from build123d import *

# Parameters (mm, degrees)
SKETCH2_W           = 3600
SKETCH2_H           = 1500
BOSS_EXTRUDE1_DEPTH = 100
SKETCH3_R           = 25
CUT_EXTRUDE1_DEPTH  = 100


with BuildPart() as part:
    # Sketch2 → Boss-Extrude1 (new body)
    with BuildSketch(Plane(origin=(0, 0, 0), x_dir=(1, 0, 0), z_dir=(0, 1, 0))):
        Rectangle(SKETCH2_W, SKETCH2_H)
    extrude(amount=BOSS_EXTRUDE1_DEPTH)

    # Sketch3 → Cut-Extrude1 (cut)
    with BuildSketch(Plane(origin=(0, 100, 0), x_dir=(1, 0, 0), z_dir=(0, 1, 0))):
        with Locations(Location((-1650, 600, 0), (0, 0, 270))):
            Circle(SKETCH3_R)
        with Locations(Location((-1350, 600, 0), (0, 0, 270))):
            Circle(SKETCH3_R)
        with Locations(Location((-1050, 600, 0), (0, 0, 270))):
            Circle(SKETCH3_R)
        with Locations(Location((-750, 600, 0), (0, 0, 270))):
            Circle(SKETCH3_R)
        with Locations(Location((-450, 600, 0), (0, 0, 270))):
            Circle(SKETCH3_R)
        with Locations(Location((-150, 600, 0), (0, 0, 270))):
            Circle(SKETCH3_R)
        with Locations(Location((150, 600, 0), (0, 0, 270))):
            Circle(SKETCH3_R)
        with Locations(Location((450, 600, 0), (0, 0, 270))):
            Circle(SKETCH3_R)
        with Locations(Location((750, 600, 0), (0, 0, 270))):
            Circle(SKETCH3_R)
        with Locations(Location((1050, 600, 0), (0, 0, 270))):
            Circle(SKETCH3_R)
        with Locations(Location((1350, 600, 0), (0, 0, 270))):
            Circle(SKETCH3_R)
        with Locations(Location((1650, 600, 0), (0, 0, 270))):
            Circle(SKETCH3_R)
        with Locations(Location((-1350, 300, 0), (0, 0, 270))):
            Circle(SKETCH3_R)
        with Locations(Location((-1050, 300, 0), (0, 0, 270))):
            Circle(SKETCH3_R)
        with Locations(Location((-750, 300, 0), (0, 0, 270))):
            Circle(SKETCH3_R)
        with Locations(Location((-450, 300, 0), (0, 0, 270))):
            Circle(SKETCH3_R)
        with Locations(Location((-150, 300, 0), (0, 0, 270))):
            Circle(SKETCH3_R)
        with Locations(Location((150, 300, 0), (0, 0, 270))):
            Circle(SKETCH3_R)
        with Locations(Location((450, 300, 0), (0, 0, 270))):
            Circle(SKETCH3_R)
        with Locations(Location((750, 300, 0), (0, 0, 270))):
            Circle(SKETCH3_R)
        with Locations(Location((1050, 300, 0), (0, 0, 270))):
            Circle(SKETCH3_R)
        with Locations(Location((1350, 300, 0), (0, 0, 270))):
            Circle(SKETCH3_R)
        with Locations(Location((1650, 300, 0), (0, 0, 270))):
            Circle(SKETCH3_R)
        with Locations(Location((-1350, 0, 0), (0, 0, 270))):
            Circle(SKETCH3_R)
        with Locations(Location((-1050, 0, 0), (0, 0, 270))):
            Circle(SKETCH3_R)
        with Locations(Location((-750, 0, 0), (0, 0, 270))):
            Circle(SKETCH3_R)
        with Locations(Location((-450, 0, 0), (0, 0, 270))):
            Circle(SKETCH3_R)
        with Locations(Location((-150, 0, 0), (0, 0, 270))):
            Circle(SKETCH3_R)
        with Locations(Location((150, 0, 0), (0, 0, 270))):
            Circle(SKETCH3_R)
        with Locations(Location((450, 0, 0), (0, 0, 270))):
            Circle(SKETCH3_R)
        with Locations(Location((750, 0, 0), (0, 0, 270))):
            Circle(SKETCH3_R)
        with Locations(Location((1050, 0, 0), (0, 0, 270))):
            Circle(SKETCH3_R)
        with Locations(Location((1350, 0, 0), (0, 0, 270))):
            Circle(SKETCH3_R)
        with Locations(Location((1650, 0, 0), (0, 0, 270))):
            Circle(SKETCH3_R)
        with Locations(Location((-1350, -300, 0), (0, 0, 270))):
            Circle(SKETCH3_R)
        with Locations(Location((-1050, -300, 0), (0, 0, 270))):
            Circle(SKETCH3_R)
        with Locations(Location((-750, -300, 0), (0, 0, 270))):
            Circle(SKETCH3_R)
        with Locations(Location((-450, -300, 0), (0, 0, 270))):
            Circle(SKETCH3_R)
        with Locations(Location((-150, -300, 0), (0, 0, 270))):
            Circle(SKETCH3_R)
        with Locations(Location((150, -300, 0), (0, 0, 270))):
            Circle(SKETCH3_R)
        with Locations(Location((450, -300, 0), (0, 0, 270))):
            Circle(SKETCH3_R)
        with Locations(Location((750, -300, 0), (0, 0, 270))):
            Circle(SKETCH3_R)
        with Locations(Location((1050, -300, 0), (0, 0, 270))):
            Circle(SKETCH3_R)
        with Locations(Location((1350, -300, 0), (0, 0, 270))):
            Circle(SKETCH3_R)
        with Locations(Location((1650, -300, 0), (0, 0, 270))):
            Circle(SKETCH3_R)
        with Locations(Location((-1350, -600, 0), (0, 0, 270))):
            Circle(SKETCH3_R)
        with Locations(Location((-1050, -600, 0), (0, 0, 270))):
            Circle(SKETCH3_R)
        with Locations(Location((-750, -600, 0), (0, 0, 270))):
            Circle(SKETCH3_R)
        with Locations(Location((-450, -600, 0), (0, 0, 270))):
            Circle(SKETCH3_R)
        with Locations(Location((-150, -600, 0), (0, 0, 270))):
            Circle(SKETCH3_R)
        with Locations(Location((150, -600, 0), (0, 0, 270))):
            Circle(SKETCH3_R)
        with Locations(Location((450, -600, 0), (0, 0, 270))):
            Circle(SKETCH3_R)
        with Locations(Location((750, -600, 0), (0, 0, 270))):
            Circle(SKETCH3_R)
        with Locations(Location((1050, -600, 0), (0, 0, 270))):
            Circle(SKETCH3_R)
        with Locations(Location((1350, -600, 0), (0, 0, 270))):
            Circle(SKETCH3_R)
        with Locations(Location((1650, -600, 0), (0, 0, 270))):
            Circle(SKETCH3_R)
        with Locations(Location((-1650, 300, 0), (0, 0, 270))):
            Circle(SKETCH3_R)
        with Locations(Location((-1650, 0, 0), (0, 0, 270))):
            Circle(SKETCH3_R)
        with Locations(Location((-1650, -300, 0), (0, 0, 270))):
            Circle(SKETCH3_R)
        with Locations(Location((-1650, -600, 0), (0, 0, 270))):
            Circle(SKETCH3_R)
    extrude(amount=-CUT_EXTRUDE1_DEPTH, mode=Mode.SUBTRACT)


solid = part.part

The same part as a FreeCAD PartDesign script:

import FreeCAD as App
import Part
import Sketcher

V = App.Vector
Q = App.Units.Quantity


def add_polygon(sketch, points):
    """Adds a closed chain of lines whose ends are joined by coincident constraints."""
    first, n = sketch.GeometryCount, len(points)
    for a, b in zip(points, points[1:] + points[:1]):
        sketch.addGeometry(Part.LineSegment(App.Vector(*a, 0), App.Vector(*b, 0)), False)
    for i in range(n):
        sketch.addConstraint(Sketcher.Constraint("Coincident", first + i, 2, first + (i + 1) % n, 1))

doc = App.newDocument("Part")
body = doc.addObject("PartDesign::Body", "Body")

# Sketch on XZ plane
sketch1 = body.newObject("Sketcher::SketchObject", "Sketch")
sketch1.AttachmentSupport = (doc.getObject("XZ_Plane"), [""])
sketch1.MapMode = "FlatFace"
add_polygon(sketch1, [(-1800, -750), (-1800, 750), (1800, 750), (1800, -750)])  # lines 0-3
sketch1.addConstraint([
    Sketcher.Constraint("Vertical", 0),
    Sketcher.Constraint("Horizontal", 1),
    Sketcher.Constraint("Vertical", 2),
    Sketcher.Constraint("Horizontal", 3),
    Sketcher.Constraint("Symmetric", 0, 2, 2, 2, -1, 1),
    Sketcher.Constraint("DistanceX", 1, 1, 1, 2, Q("3600 mm")),
    Sketcher.Constraint("DistanceY", 0, 1, 0, 2, Q("1500 mm")),
])
pad1 = body.newObject("PartDesign::Pad", "Pad")
pad1.Profile = sketch1
pad1.Length = 100
pad1.Reversed = True

# Sketch on XZ plane
sketch2 = body.newObject("Sketcher::SketchObject", "Sketch001")
sketch2.AttachmentSupport = (doc.getObject("XZ_Plane"), [""])
sketch2.MapMode = "FlatFace"
sketch2.AttachmentOffset = App.Placement(V(0, 0, -100), App.Rotation())
sketch2.addGeometry([
    Part.Circle(V(-1650, -600, 0), V(0, 0, 1), 25),  # 0
    Part.Circle(V(-1350, -600, 0), V(0, 0, 1), 25),  # 1
    Part.Circle(V(-1050, -600, 0), V(0, 0, 1), 25),  # 2
    Part.Circle(V(-750, -600, 0), V(0, 0, 1), 25),  # 3
    Part.Circle(V(-450, -600, 0), V(0, 0, 1), 25),  # 4
    Part.Circle(V(-150, -600, 0), V(0, 0, 1), 25),  # 5
    Part.Circle(V(150, -600, 0), V(0, 0, 1), 25),  # 6
    Part.Circle(V(450, -600, 0), V(0, 0, 1), 25),  # 7
    Part.Circle(V(750, -600, 0), V(0, 0, 1), 25),  # 8
    Part.Circle(V(1050, -600, 0), V(0, 0, 1), 25),  # 9
    Part.Circle(V(1350, -600, 0), V(0, 0, 1), 25),  # 10
    Part.Circle(V(1650, -600, 0), V(0, 0, 1), 25),  # 11
    Part.Circle(V(-1350, -300, 0), V(0, 0, 1), 25),  # 12
    Part.Circle(V(-1050, -300, 0), V(0, 0, 1), 25),  # 13
    Part.Circle(V(-750, -300, 0), V(0, 0, 1), 25),  # 14
    Part.Circle(V(-450, -300, 0), V(0, 0, 1), 25),  # 15
    Part.Circle(V(-150, -300, 0), V(0, 0, 1), 25),  # 16
    Part.Circle(V(150, -300, 0), V(0, 0, 1), 25),  # 17
    Part.Circle(V(450, -300, 0), V(0, 0, 1), 25),  # 18
    Part.Circle(V(750, -300, 0), V(0, 0, 1), 25),  # 19
    Part.Circle(V(1050, -300, 0), V(0, 0, 1), 25),  # 20
    Part.Circle(V(1350, -300, 0), V(0, 0, 1), 25),  # 21
    Part.Circle(V(1650, -300, 0), V(0, 0, 1), 25),  # 22
    Part.Circle(V(-1350, 0, 0), V(0, 0, 1), 25),  # 23
    Part.Circle(V(-1050, 0, 0), V(0, 0, 1), 25),  # 24
    Part.Circle(V(-750, 0, 0), V(0, 0, 1), 25),  # 25
    Part.Circle(V(-450, 0, 0), V(0, 0, 1), 25),  # 26
    Part.Circle(V(-150, 0, 0), V(0, 0, 1), 25),  # 27
    Part.Circle(V(150, 0, 0), V(0, 0, 1), 25),  # 28
    Part.Circle(V(450, 0, 0), V(0, 0, 1), 25),  # 29
    Part.Circle(V(750, 0, 0), V(0, 0, 1), 25),  # 30
    Part.Circle(V(1050, 0, 0), V(0, 0, 1), 25),  # 31
    Part.Circle(V(1350, 0, 0), V(0, 0, 1), 25),  # 32
    Part.Circle(V(1650, 0, 0), V(0, 0, 1), 25),  # 33
    Part.Circle(V(-1350, 300, 0), V(0, 0, 1), 25),  # 34
    Part.Circle(V(-1050, 300, 0), V(0, 0, 1), 25),  # 35
    Part.Circle(V(-750, 300, 0), V(0, 0, 1), 25),  # 36
    Part.Circle(V(-450, 300, 0), V(0, 0, 1), 25),  # 37
    Part.Circle(V(-150, 300, 0), V(0, 0, 1), 25),  # 38
    Part.Circle(V(150, 300, 0), V(0, 0, 1), 25),  # 39
    Part.Circle(V(450, 300, 0), V(0, 0, 1), 25),  # 40
    Part.Circle(V(750, 300, 0), V(0, 0, 1), 25),  # 41
    Part.Circle(V(1050, 300, 0), V(0, 0, 1), 25),  # 42
    Part.Circle(V(1350, 300, 0), V(0, 0, 1), 25),  # 43
    Part.Circle(V(1650, 300, 0), V(0, 0, 1), 25),  # 44
    Part.Circle(V(-1350, 600, 0), V(0, 0, 1), 25),  # 45
    Part.Circle(V(-1050, 600, 0), V(0, 0, 1), 25),  # 46
    Part.Circle(V(-750, 600, 0), V(0, 0, 1), 25),  # 47
    Part.Circle(V(-450, 600, 0), V(0, 0, 1), 25),  # 48
    Part.Circle(V(-150, 600, 0), V(0, 0, 1), 25),  # 49
    Part.Circle(V(150, 600, 0), V(0, 0, 1), 25),  # 50
    Part.Circle(V(450, 600, 0), V(0, 0, 1), 25),  # 51
    Part.Circle(V(750, 600, 0), V(0, 0, 1), 25),  # 52
    Part.Circle(V(1050, 600, 0), V(0, 0, 1), 25),  # 53
    Part.Circle(V(1350, 600, 0), V(0, 0, 1), 25),  # 54
    Part.Circle(V(1650, 600, 0), V(0, 0, 1), 25),  # 55
    Part.Circle(V(-1650, -300, 0), V(0, 0, 1), 25),  # 56
    Part.Circle(V(-1650, 0, 0), V(0, 0, 1), 25),  # 57
    Part.Circle(V(-1650, 300, 0), V(0, 0, 1), 25),  # 58
    Part.Circle(V(-1650, 600, 0), V(0, 0, 1), 25),  # 59
], False)
sketch2.addConstraint([
    Sketcher.Constraint("Equal", 0, 1),
    Sketcher.Constraint("Equal", 1, 2),
    Sketcher.Constraint("Equal", 2, 3),
    Sketcher.Constraint("Equal", 3, 4),
    Sketcher.Constraint("Equal", 4, 5),
    Sketcher.Constraint("Equal", 5, 6),
    Sketcher.Constraint("Equal", 6, 7),
    Sketcher.Constraint("Equal", 7, 8),
    Sketcher.Constraint("Equal", 8, 9),
    Sketcher.Constraint("Equal", 9, 10),
    Sketcher.Constraint("Equal", 10, 11),
    Sketcher.Constraint("Equal", 11, 12),
    Sketcher.Constraint("Equal", 12, 13),
    Sketcher.Constraint("Equal", 13, 14),
    Sketcher.Constraint("Equal", 14, 15),
    Sketcher.Constraint("Equal", 15, 16),
    Sketcher.Constraint("Equal", 16, 17),
    Sketcher.Constraint("Equal", 17, 18),
    Sketcher.Constraint("Equal", 18, 19),
    Sketcher.Constraint("Equal", 19, 20),
    Sketcher.Constraint("Equal", 20, 21),
    Sketcher.Constraint("Equal", 21, 22),
    Sketcher.Constraint("Equal", 22, 23),
    Sketcher.Constraint("Equal", 23, 24),
    Sketcher.Constraint("Equal", 24, 25),
    Sketcher.Constraint("Equal", 25, 26),
    Sketcher.Constraint("Equal", 26, 27),
    Sketcher.Constraint("Equal", 27, 28),
    Sketcher.Constraint("Equal", 28, 29),
    Sketcher.Constraint("Equal", 29, 30),
    Sketcher.Constraint("Equal", 30, 31),
    Sketcher.Constraint("Equal", 31, 32),
    Sketcher.Constraint("Equal", 32, 33),
    Sketcher.Constraint("Equal", 33, 34),
    Sketcher.Constraint("Equal", 34, 35),
    Sketcher.Constraint("Equal", 35, 36),
    Sketcher.Constraint("Equal", 36, 37),
    Sketcher.Constraint("Equal", 37, 38),
    Sketcher.Constraint("Equal", 38, 39),
    Sketcher.Constraint("Equal", 39, 40),
    Sketcher.Constraint("Equal", 40, 41),
    Sketcher.Constraint("Equal", 41, 42),
    Sketcher.Constraint("Equal", 42, 43),
    Sketcher.Constraint("Equal", 43, 44),
    Sketcher.Constraint("Equal", 44, 45),
    Sketcher.Constraint("Equal", 45, 46),
    Sketcher.Constraint("Equal", 46, 47),
    Sketcher.Constraint("Equal", 47, 48),
    Sketcher.Constraint("Equal", 48, 49),
    Sketcher.Constraint("Equal", 49, 50),
    Sketcher.Constraint("Equal", 50, 51),
    Sketcher.Constraint("Equal", 51, 52),
    Sketcher.Constraint("Equal", 52, 53),
    Sketcher.Constraint("Equal", 53, 54),
    Sketcher.Constraint("Equal", 54, 55),
    Sketcher.Constraint("Equal", 55, 56),
    Sketcher.Constraint("Equal", 56, 57),
    Sketcher.Constraint("Equal", 57, 58),
    Sketcher.Constraint("Equal", 58, 59),
    Sketcher.Constraint("Symmetric", 27, 3, 28, 3, -1, 1),
    Sketcher.Constraint("Symmetric", 26, 3, 29, 3, -1, 1),
    Sketcher.Constraint("Symmetric", 25, 3, 30, 3, -1, 1),
    Sketcher.Constraint("Symmetric", 24, 3, 31, 3, -1, 1),
    Sketcher.Constraint("Symmetric", 23, 3, 32, 3, -1, 1),
    Sketcher.Constraint("Symmetric", 21, 3, 34, 3, -1, 1),
    Sketcher.Constraint("Symmetric", 20, 3, 35, 3, -1, 1),
    Sketcher.Constraint("Symmetric", 19, 3, 36, 3, -1, 1),
    Sketcher.Constraint("Symmetric", 18, 3, 37, 3, -1, 1),
    Sketcher.Constraint("Symmetric", 17, 3, 38, 3, -1, 1),
    Sketcher.Constraint("Symmetric", 16, 3, 39, 3, -1, 1),
    Sketcher.Constraint("Symmetric", 15, 3, 40, 3, -1, 1),
    Sketcher.Constraint("Symmetric", 14, 3, 41, 3, -1, 1),
    Sketcher.Constraint("Symmetric", 13, 3, 42, 3, -1, 1),
    Sketcher.Constraint("Symmetric", 12, 3, 43, 3, -1, 1),
    Sketcher.Constraint("Symmetric", 10, 3, 45, 3, -1, 1),
    Sketcher.Constraint("Symmetric", 9, 3, 46, 3, -1, 1),
    Sketcher.Constraint("Symmetric", 8, 3, 47, 3, -1, 1),
    Sketcher.Constraint("Symmetric", 7, 3, 48, 3, -1, 1),
    Sketcher.Constraint("Symmetric", 6, 3, 49, 3, -1, 1),
    Sketcher.Constraint("Symmetric", 5, 3, 50, 3, -1, 1),
    Sketcher.Constraint("Symmetric", 4, 3, 51, 3, -1, 1),
    Sketcher.Constraint("Symmetric", 3, 3, 52, 3, -1, 1),
    Sketcher.Constraint("Symmetric", 2, 3, 53, 3, -1, 1),
    Sketcher.Constraint("Symmetric", 1, 3, 54, 3, -1, 1),
    Sketcher.Constraint("Symmetric", 0, 3, 55, 3, -1, 1),
    Sketcher.Constraint("Symmetric", 44, 3, 56, 3, -1, 1),
    Sketcher.Constraint("Symmetric", 33, 3, 57, 3, -1, 1),
    Sketcher.Constraint("Symmetric", 22, 3, 58, 3, -1, 1),
    Sketcher.Constraint("Symmetric", 11, 3, 59, 3, -1, 1),
    Sketcher.Constraint("Symmetric", 5, 3, 6, 3, -2),
    Sketcher.Constraint("Symmetric", 4, 3, 7, 3, -2),
    Sketcher.Constraint("Symmetric", 3, 3, 8, 3, -2),
    Sketcher.Constraint("Symmetric", 2, 3, 9, 3, -2),
    Sketcher.Constraint("Symmetric", 1, 3, 10, 3, -2),
    Sketcher.Constraint("Symmetric", 0, 3, 11, 3, -2),
    Sketcher.Constraint("Symmetric", 16, 3, 17, 3, -2),
    Sketcher.Constraint("Symmetric", 15, 3, 18, 3, -2),
    Sketcher.Constraint("Symmetric", 14, 3, 19, 3, -2),
    Sketcher.Constraint("Symmetric", 13, 3, 20, 3, -2),
    Sketcher.Constraint("Symmetric", 12, 3, 21, 3, -2),
    Sketcher.Constraint("Symmetric", 22, 3, 56, 3, -2),
    Sketcher.Constraint("PointOnObject", 23, 3, -1),
    Sketcher.Constraint("PointOnObject", 24, 3, -1),
    Sketcher.Constraint("PointOnObject", 25, 3, -1),
    Sketcher.Constraint("PointOnObject", 26, 3, -1),
    Sketcher.Constraint("PointOnObject", 27, 3, -1),
    Sketcher.Constraint("PointOnObject", 33, 3, -1),
    Sketcher.Constraint("Horizontal", 0, 3, 1, 3),
    Sketcher.Constraint("Horizontal", 1, 3, 2, 3),
    Sketcher.Constraint("Horizontal", 2, 3, 3, 3),
    Sketcher.Constraint("Horizontal", 3, 3, 4, 3),
    Sketcher.Constraint("Horizontal", 4, 3, 5, 3),
    Sketcher.Constraint("Horizontal", 12, 3, 13, 3),
    Sketcher.Constraint("Horizontal", 13, 3, 14, 3),
    Sketcher.Constraint("Horizontal", 14, 3, 15, 3),
    Sketcher.Constraint("Horizontal", 15, 3, 16, 3),
    Sketcher.Constraint("Horizontal", 21, 3, 22, 3),
    Sketcher.Constraint("Vertical", 1, 3, 12, 3),
    Sketcher.Constraint("Vertical", 2, 3, 13, 3),
    Sketcher.Constraint("Vertical", 3, 3, 14, 3),
    Sketcher.Constraint("Vertical", 4, 3, 15, 3),
    Sketcher.Constraint("Vertical", 5, 3, 16, 3),
    Sketcher.Constraint("Vertical", 11, 3, 22, 3),
    Sketcher.Constraint("Vertical", 12, 3, 23, 3),
    Sketcher.Constraint("Vertical", 13, 3, 24, 3),
    Sketcher.Constraint("Vertical", 14, 3, 25, 3),
    Sketcher.Constraint("Vertical", 15, 3, 26, 3),
    Sketcher.Constraint("Vertical", 16, 3, 27, 3),
    Sketcher.Constraint("Vertical", 22, 3, 33, 3),
    Sketcher.Constraint("Diameter", 0, Q("50 mm")),
    Sketcher.Constraint("DistanceX", 0, 3, -1, 1, Q("1650 mm")),
    Sketcher.Constraint("DistanceY", 0, 3, -1, 1, Q("600 mm")),
    Sketcher.Constraint("DistanceX", 1, 3, -1, 1, Q("1350 mm")),
    Sketcher.Constraint("DistanceX", 2, 3, -1, 1, Q("1050 mm")),
    Sketcher.Constraint("DistanceX", 3, 3, -1, 1, Q("750 mm")),
    Sketcher.Constraint("DistanceX", 4, 3, -1, 1, Q("450 mm")),
    Sketcher.Constraint("DistanceX", 5, 3, -1, 1, Q("150 mm")),
    Sketcher.Constraint("DistanceY", 12, 3, -1, 1, Q("300 mm")),
])
pocket1 = body.newObject("PartDesign::Pocket", "Pocket")
pocket1.Profile = sketch2
pocket1.Length = 100
pocket1.Reversed = True

doc.recompute()
